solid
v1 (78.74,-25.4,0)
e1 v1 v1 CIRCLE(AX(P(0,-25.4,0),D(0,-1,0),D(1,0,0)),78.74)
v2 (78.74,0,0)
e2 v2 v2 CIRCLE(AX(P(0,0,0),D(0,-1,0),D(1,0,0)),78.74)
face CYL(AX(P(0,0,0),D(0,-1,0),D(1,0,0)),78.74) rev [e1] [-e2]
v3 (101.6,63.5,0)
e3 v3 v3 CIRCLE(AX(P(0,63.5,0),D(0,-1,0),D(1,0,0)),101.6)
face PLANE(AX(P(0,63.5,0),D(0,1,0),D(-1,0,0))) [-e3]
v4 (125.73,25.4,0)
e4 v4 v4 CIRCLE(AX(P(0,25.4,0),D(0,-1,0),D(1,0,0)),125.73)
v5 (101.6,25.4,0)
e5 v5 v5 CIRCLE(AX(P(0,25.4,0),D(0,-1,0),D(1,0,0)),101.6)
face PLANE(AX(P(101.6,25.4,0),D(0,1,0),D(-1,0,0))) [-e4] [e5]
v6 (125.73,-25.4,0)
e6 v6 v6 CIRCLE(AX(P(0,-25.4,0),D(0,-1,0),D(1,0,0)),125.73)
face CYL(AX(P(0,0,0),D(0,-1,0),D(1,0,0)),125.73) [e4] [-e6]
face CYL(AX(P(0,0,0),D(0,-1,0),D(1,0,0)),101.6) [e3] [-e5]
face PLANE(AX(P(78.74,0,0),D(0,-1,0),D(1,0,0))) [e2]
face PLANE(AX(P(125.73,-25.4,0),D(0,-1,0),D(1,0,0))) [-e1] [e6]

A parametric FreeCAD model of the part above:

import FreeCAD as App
import Part
import Sketcher

V = App.Vector
Q = App.Units.Quantity

doc = App.newDocument("Part")
body = doc.addObject("PartDesign::Body", "Body")

# Sketch on XY plane
sketch1 = doc.addObject("Sketcher::SketchObject", "Sketch")
body.addObject(sketch1)
sketch1.AttachmentSupport = (doc.XY_Plane, [""])
sketch1.MapMode = "FlatFace"
sketch1.addGeometry(Part.LineSegment(V(0, 64, 0), V(0, 0, 0)), False)
sketch1.addGeometry(Part.LineSegment(V(0, 0, 0), V(79, 0, 0)), False)
sketch1.addGeometry(Part.LineSegment(V(79, 0, 0), V(79, -25, 0)), False)
sketch1.addGeometry(Part.LineSegment(V(79, -25, 0), V(126, -25, 0)), False)
sketch1.addGeometry(Part.LineSegment(V(126, -25, 0), V(126, 25, 0)), False)
sketch1.addGeometry(Part.LineSegment(V(126, 25, 0), V(102, 25, 0)), False)
sketch1.addGeometry(Part.LineSegment(V(102, 25, 0), V(102, 64, 0)), False)
sketch1.addGeometry(Part.LineSegment(V(102, 64, 0), V(0, 64, 0)), False)
sketch1.addConstraint(Sketcher.Constraint("Coincident", 0, 2, 1, 1))
sketch1.addConstraint(Sketcher.Constraint("Coincident", 1, 2, 2, 1))
sketch1.addConstraint(Sketcher.Constraint("Coincident", 2, 2, 3, 1))
sketch1.addConstraint(Sketcher.Constraint("Coincident", 3, 2, 4, 1))
sketch1.addConstraint(Sketcher.Constraint("Coincident", 4, 2, 5, 1))
sketch1.addConstraint(Sketcher.Constraint("Coincident", 5, 2, 6, 1))
sketch1.addConstraint(Sketcher.Constraint("Coincident", 6, 2, 7, 1))
sketch1.addConstraint(Sketcher.Constraint("Coincident", 7, 2, 0, 1))
sketch1.addConstraint(Sketcher.Constraint("Vertical", 0))
sketch1.addConstraint(Sketcher.Constraint("Horizontal", 1))
sketch1.addConstraint(Sketcher.Constraint("Vertical", 2))
sketch1.addConstraint(Sketcher.Constraint("Horizontal", 3))
sketch1.addConstraint(Sketcher.Constraint("Vertical", 4))
sketch1.addConstraint(Sketcher.Constraint("Horizontal", 5))
sketch1.addConstraint(Sketcher.Constraint("Vertical", 6))
sketch1.addConstraint(Sketcher.Constraint("Horizontal", 7))
sketch1.addConstraint(Sketcher.Constraint("Coincident", 0, 2, -1, 1))
sketch1.addConstraint(Sketcher.Constraint("DistanceX", 7, 2, 7, 1, Q("4 in")))
sketch1.addConstraint(Sketcher.Constraint("DistanceY", 2, 2, 2, 1, Q("1 in")))
sketch1.addConstraint(Sketcher.Constraint("DistanceY", 4, 1, 4, 2, Q("2 in")))
sketch1.addConstraint(Sketcher.Constraint("DistanceX", 1, 1, 1, 2, Q("3.1 in")))
sketch1.addConstraint(Sketcher.Constraint("DistanceY", 0, 2, 0, 1, Q("2.5 in")))
sketch1.addConstraint(Sketcher.Constraint("DistanceX", 3, 1, 3, 2, Q("1.85 in")))
revolution = doc.addObject("PartDesign::Revolution", "Revolution")
body.addObject(revolution)
revolution.Profile = sketch1
revolution.ReferenceAxis = (sketch1, ["V_Axis"])
revolution.Angle = 360

doc.recompute()
